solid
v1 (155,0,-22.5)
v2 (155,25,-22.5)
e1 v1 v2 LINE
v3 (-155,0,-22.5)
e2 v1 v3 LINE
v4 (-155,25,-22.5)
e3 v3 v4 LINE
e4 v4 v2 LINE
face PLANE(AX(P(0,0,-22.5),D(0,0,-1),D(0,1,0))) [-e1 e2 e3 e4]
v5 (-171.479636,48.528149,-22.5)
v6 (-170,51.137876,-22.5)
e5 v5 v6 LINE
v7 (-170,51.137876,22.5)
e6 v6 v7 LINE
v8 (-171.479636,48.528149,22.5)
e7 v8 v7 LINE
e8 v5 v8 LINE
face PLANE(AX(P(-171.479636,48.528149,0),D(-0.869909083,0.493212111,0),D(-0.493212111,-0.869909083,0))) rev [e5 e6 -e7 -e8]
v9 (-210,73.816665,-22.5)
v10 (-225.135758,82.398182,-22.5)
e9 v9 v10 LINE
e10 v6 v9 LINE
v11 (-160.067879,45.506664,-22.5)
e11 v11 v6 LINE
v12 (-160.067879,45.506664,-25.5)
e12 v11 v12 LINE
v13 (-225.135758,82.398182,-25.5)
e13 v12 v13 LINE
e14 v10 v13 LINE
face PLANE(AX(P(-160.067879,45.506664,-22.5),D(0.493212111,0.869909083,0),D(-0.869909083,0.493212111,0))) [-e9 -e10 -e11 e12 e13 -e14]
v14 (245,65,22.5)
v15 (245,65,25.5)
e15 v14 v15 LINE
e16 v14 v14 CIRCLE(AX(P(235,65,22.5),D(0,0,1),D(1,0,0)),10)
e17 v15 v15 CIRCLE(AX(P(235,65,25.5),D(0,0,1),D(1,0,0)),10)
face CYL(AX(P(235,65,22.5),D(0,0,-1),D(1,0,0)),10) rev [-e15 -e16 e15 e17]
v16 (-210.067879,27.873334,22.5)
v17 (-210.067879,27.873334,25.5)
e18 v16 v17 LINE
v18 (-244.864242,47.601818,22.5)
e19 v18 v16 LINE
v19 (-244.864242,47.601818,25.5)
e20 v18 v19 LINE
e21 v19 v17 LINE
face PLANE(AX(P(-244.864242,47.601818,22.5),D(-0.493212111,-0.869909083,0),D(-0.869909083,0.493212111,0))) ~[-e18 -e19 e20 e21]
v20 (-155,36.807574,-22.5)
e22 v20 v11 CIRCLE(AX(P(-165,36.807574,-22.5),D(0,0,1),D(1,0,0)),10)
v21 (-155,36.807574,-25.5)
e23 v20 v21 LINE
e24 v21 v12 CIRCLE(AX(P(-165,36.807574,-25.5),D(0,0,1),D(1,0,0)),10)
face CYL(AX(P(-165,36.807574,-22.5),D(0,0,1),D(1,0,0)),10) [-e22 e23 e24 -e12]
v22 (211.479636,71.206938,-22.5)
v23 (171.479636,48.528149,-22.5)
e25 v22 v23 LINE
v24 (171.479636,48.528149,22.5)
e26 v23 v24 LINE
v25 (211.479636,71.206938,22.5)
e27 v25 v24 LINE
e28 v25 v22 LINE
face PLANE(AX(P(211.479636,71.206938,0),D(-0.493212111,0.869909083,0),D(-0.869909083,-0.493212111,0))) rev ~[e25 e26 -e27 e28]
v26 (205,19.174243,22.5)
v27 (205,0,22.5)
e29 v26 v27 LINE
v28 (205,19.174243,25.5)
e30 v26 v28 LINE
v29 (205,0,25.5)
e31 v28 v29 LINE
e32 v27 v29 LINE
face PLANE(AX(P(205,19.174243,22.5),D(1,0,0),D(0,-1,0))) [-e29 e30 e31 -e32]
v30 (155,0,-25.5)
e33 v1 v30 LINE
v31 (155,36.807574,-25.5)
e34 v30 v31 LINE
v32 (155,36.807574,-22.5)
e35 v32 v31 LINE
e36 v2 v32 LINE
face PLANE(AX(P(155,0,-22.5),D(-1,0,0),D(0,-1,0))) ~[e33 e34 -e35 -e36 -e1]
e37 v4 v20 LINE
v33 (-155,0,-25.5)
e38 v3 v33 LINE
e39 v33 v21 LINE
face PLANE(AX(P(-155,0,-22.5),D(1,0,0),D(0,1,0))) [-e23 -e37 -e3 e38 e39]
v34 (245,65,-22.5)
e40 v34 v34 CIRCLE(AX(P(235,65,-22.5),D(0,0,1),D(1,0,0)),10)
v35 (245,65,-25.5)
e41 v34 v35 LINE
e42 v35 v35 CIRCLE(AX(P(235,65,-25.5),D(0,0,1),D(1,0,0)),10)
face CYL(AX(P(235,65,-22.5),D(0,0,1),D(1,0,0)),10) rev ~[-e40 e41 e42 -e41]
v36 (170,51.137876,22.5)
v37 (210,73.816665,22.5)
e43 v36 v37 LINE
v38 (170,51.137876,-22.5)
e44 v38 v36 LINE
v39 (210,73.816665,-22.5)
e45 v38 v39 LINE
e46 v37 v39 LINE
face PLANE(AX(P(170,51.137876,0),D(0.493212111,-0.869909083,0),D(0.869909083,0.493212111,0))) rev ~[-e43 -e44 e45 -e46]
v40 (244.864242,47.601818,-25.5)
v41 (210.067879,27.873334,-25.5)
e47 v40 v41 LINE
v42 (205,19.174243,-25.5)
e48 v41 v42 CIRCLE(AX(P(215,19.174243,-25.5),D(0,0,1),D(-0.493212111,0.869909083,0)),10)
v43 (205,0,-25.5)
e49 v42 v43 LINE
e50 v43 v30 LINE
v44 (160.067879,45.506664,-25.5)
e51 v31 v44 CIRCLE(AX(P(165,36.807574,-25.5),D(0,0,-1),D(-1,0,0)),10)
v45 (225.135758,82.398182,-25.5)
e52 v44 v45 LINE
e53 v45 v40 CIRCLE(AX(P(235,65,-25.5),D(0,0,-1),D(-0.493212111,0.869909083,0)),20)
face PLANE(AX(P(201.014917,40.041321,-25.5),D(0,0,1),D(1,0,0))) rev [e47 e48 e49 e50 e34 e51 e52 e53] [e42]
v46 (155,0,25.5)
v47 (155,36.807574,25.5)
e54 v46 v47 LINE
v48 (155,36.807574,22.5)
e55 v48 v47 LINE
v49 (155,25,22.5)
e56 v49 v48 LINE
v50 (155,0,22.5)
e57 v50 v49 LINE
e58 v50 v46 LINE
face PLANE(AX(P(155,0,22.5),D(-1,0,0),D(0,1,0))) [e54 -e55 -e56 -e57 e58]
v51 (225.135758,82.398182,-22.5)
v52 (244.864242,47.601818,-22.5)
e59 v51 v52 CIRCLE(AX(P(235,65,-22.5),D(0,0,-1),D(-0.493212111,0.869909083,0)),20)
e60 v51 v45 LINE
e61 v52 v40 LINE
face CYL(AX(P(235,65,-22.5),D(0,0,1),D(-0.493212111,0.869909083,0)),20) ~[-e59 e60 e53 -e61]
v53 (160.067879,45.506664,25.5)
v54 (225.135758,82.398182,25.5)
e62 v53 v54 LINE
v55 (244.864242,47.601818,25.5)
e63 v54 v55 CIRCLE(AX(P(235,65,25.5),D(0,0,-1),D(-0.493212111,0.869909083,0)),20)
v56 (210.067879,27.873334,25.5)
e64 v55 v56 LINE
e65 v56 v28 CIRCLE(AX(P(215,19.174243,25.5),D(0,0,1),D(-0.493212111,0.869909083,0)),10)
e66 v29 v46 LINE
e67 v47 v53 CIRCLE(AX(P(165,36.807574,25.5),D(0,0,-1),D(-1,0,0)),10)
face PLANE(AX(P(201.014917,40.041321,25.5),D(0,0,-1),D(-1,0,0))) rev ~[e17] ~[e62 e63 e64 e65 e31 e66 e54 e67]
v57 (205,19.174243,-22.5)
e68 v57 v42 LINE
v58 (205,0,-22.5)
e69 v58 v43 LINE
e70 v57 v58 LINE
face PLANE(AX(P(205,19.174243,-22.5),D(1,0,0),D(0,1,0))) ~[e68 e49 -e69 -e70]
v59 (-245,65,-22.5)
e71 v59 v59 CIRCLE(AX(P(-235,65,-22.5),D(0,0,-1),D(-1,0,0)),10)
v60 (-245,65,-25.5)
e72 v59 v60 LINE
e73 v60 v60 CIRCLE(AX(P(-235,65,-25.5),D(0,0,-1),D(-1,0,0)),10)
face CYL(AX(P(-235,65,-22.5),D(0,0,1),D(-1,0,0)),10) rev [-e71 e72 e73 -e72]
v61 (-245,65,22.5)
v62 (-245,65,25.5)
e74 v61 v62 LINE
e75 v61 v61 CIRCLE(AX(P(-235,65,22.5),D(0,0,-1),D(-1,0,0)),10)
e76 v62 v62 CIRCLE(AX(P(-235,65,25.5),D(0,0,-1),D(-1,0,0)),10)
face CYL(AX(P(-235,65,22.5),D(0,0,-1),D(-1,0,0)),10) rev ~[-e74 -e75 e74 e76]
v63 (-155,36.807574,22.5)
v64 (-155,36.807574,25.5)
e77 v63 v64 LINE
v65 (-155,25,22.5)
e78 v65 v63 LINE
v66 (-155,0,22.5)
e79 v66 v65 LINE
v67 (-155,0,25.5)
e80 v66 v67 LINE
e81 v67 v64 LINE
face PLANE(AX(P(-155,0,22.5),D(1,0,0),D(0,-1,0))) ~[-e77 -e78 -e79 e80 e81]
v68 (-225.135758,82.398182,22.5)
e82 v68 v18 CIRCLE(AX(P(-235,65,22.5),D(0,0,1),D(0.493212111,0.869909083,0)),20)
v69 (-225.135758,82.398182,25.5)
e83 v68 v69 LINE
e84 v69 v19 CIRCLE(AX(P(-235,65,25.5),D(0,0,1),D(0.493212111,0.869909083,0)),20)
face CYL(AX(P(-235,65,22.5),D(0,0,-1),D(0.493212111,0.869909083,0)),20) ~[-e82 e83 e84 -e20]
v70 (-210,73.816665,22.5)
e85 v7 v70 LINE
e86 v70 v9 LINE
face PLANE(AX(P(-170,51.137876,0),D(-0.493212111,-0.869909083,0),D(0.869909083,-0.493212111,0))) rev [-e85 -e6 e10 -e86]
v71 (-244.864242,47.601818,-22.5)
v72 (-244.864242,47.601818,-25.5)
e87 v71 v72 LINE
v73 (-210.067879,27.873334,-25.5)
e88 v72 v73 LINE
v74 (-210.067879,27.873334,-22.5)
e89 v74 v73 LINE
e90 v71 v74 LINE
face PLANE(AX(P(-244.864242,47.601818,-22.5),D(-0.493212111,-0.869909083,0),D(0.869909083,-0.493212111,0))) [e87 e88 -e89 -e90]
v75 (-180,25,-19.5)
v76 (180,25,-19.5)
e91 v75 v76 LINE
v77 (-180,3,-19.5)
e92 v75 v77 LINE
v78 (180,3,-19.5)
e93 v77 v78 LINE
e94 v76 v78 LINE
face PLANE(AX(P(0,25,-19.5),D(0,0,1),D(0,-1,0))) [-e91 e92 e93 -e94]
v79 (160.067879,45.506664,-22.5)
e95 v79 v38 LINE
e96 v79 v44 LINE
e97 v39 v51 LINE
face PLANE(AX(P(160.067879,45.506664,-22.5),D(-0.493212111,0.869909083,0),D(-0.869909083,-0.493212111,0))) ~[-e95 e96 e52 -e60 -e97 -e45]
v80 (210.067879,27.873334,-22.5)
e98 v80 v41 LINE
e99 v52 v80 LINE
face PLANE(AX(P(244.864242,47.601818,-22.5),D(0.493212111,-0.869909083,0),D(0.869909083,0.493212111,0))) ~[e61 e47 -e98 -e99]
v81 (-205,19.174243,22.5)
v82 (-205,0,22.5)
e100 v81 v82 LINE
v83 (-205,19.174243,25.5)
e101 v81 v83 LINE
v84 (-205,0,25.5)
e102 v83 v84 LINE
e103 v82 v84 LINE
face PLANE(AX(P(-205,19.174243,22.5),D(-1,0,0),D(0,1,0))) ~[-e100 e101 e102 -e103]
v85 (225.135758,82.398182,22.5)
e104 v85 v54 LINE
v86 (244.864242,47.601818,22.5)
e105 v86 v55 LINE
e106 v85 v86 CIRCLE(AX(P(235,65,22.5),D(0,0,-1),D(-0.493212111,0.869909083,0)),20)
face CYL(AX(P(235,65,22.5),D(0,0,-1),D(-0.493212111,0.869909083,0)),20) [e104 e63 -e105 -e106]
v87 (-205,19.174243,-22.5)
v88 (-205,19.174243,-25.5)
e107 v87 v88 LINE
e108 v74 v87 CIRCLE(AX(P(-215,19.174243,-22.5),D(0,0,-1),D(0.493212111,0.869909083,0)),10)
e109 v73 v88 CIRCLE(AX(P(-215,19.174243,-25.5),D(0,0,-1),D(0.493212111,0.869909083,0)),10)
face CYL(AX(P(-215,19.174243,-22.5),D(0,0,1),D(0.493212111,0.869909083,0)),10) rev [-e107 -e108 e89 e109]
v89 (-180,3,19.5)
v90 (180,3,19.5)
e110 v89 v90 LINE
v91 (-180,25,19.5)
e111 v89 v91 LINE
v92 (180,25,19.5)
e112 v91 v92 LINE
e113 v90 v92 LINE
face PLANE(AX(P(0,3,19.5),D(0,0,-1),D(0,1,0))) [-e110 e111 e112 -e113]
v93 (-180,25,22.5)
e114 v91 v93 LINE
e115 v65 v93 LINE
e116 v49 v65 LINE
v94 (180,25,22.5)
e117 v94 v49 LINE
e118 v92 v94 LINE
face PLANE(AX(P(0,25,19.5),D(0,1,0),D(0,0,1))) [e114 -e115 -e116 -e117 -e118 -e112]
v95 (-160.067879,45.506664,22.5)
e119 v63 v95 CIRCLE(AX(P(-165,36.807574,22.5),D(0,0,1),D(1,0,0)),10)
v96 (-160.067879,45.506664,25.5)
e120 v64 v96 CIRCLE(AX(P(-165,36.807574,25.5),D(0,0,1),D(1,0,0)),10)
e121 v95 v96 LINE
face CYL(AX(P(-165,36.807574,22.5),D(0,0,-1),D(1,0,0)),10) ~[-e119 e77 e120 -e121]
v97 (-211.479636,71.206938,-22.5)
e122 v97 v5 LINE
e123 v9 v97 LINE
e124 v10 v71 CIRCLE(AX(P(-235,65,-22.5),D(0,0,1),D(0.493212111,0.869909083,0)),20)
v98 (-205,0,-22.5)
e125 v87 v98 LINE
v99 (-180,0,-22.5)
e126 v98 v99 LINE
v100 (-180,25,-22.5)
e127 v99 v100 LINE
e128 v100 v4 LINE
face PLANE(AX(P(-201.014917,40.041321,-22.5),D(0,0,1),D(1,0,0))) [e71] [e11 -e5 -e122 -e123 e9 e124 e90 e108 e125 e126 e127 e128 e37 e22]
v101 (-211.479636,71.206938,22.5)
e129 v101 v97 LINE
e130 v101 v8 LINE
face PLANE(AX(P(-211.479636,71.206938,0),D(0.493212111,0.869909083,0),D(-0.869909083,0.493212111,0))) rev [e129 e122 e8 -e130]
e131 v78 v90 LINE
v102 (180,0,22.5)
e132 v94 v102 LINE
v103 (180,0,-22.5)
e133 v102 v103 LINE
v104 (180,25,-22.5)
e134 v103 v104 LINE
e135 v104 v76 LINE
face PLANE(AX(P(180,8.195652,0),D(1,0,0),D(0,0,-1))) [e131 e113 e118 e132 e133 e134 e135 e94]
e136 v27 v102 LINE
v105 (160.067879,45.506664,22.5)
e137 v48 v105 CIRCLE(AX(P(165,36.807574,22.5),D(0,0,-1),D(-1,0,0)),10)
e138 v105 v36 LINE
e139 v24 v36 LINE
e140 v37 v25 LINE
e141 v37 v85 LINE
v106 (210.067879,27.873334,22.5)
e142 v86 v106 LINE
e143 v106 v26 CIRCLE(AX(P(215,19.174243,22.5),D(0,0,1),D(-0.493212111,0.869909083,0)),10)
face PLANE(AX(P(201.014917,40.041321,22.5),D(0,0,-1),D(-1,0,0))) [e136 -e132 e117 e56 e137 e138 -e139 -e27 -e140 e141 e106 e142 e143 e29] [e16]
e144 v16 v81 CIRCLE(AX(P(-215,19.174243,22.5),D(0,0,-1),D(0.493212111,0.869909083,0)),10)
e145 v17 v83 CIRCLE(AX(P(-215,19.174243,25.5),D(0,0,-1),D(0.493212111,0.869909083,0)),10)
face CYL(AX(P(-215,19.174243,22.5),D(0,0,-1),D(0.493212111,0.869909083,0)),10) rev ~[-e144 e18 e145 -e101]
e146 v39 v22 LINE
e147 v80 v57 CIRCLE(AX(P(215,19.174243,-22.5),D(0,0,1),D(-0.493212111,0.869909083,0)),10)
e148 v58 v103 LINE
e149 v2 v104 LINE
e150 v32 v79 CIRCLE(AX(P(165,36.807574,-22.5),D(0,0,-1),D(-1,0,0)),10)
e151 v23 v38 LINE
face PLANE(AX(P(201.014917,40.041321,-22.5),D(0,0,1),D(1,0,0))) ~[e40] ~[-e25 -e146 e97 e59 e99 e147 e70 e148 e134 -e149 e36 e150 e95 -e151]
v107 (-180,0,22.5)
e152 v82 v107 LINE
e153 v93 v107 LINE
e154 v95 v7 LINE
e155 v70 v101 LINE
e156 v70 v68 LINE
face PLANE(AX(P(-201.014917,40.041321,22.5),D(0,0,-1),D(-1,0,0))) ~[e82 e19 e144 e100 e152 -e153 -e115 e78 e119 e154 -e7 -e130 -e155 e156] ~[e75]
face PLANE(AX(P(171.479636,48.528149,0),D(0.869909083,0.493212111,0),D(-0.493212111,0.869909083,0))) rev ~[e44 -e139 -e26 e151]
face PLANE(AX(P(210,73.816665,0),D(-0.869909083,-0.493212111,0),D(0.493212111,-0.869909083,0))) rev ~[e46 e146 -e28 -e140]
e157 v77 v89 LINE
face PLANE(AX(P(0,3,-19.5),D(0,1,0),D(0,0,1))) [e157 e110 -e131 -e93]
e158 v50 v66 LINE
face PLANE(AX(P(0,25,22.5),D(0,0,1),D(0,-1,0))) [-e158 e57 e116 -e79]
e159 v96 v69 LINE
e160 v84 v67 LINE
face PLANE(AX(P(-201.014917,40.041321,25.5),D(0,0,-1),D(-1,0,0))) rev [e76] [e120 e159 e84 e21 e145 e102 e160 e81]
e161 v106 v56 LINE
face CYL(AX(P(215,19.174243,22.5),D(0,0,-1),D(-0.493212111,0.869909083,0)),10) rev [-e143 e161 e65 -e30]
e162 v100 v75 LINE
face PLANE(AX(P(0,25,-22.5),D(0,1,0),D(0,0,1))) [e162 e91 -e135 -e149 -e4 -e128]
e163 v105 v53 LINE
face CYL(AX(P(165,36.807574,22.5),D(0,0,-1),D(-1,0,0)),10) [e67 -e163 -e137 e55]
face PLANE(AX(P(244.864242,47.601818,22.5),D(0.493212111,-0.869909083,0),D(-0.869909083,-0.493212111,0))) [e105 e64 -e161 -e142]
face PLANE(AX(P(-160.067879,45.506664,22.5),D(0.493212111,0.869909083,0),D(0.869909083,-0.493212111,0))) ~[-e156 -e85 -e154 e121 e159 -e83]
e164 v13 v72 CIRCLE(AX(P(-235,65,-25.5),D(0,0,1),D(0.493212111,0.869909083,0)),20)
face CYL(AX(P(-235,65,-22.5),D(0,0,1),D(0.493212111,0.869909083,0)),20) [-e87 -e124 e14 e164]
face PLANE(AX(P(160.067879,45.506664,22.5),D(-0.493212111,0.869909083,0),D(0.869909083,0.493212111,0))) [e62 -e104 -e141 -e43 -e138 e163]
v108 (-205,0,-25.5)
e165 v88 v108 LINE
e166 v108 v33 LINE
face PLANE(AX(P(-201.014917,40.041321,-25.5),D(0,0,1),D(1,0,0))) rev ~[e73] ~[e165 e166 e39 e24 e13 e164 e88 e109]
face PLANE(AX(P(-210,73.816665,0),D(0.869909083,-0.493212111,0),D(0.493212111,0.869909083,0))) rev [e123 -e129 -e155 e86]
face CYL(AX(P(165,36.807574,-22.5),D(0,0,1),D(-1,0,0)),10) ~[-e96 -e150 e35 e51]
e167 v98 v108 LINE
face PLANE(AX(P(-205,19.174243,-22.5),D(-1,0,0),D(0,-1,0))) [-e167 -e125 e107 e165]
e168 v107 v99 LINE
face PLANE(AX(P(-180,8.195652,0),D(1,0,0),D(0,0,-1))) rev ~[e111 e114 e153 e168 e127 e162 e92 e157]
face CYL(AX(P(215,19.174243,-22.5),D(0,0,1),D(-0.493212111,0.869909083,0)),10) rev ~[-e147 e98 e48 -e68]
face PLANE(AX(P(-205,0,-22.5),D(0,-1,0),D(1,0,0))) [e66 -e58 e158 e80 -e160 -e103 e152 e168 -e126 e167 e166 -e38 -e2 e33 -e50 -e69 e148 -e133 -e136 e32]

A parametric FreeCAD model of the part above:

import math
import FreeCAD as App
import Part
import Sketcher

V = App.Vector

doc = App.newDocument("Part")
body = doc.addObject("PartDesign::Body", "Body")

# Sketch on YZ plane
sketch1 = body.newObject("Sketcher::SketchObject", "Sketch")
sketch1.AttachmentSupport = (doc.getObject("YZ_Plane"), [""])
sketch1.MapMode = "FlatFace"
sketch1.addGeometry([
    Part.LineSegment(V(0, -22.5, 0), V(25, -22.5, 0)),  # 0
    Part.LineSegment(V(25, -22.5, 0), V(25, -19.5, 0)),  # 1
    Part.LineSegment(V(25, -19.5, 0), V(3, -19.5, 0)),  # 2
    Part.LineSegment(V(3, -19.5, 0), V(3, 19.5, 0)),  # 3
    Part.LineSegment(V(3, 19.5, 0), V(25, 19.5, 0)),  # 4
    Part.LineSegment(V(25, 19.5, 0), V(25, 22.5, 0)),  # 5
    Part.LineSegment(V(25, 22.5, 0), V(0, 22.5, 0)),  # 6
    Part.LineSegment(V(0, 22.5, 0), V(0, -22.5, 0)),  # 7
], False)
sketch1.addConstraint([
    Sketcher.Constraint("Coincident", 0, 2, 1, 1),
    Sketcher.Constraint("Coincident", 1, 2, 2, 1),
    Sketcher.Constraint("Coincident", 2, 2, 3, 1),
    Sketcher.Constraint("Coincident", 3, 2, 4, 1),
    Sketcher.Constraint("Coincident", 4, 2, 5, 1),
    Sketcher.Constraint("Coincident", 5, 2, 6, 1),
    Sketcher.Constraint("Coincident", 6, 2, 7, 1),
    Sketcher.Constraint("Coincident", 7, 2, 0, 1),
    Sketcher.Constraint("Horizontal", 0),
    Sketcher.Constraint("Vertical", 1),
    Sketcher.Constraint("Horizontal", 2),
    Sketcher.Constraint("Vertical", 3),
    Sketcher.Constraint("Horizontal", 4),
    Sketcher.Constraint("Vertical", 5),
    Sketcher.Constraint("Horizontal", 6),
    Sketcher.Constraint("Vertical", 7),
    Sketcher.Constraint("Symmetric", 6, 2, 7, 2, -1, 1),
    Sketcher.Constraint("Symmetric", 1, 2, 4, 2, -1),
    Sketcher.Constraint("DistanceX", 0, 1, 0, 2, 25.0),
    Sketcher.Constraint("DistanceX", 2, 2, 2, 1, 22.0),
    Sketcher.Constraint("DistanceY", 1, 1, 1, 2, 3.0),
    Sketcher.Constraint("DistanceY", 3, 1, 3, 2, 39.0),
])
pad1 = body.newObject("PartDesign::Pad", "Pad")
pad1.Profile = sketch1
pad1.Length = 360
pad1.Midplane = True

# Sketch on XY plane
sketch2 = body.newObject("Sketcher::SketchObject", "Sketch001")
sketch2.AttachmentSupport = (doc.getObject("XY_Plane"), [""])
sketch2.MapMode = "FlatFace"
sketch2.AttachmentOffset = App.Placement(V(0, 0, 22.5), App.Rotation())
sketch2.addGeometry([
    Part.LineSegment(V(155, 36.807574, 0), V(155, 0, 0)),  # 0
    Part.LineSegment(V(155, 0, 0), V(205, 0, 0)),  # 1
    Part.LineSegment(V(205, 0, 0), V(205, 19.174243, 0)),  # 2
    Part.ArcOfCircle(Part.Circle(V(215, 19.174243, 0), V(0, 0, 1), 10), math.radians(119.551924), math.radians(180)),  # 3
    Part.LineSegment(V(210.067879, 27.873334, 0), V(244.864242, 47.601818, 0)),  # 4
    Part.ArcOfCircle(Part.Circle(V(235, 65, 0), V(0, 0, 1), 20), math.radians(-60.448076), math.radians(119.551924)),  # 5
    Part.LineSegment(V(225.135758, 82.398182, 0), V(160.067879, 45.506664, 0)),  # 6
    Part.ArcOfCircle(Part.Circle(V(165, 36.807574, 0), V(0, 0, 1), 10), math.radians(119.551924), math.radians(180)),  # 7
    Part.Circle(V(235, 65, 0), V(0, 0, 1), 10),  # 8
], False)
sketch2.addConstraint([
    Sketcher.Constraint("Coincident", 0, 2, 1, 1),
    Sketcher.Constraint("Coincident", 1, 2, 2, 1),
    Sketcher.Constraint("Tangent", 2, 2, 3, 2),
    Sketcher.Constraint("Tangent", 3, 1, 4, 1),
    Sketcher.Constraint("Tangent", 4, 2, 5, 1),
    Sketcher.Constraint("Tangent", 5, 2, 6, 1),
    Sketcher.Constraint("Tangent", 6, 2, 7, 1),
    Sketcher.Constraint("Tangent", 7, 2, 0, 1),
    Sketcher.Constraint("Vertical", 0),
    Sketcher.Constraint("Horizontal", 1),
    Sketcher.Constraint("Vertical", 2),
    Sketcher.Constraint("Coincident", 8, 3, 5, 3),
    Sketcher.Constraint("Equal", 3, 7),
    Sketcher.Constraint("Equal", 7, 8),
    Sketcher.Constraint("PointOnObject", 0, 2, -1),
    Sketcher.Constraint("Parallel", 4, 6),
    Sketcher.Constraint("Diameter", 8, 20.0),
    Sketcher.Constraint("Radius", 5, 20.0),
    Sketcher.Constraint("DistanceX", 1, 1, 1, 2, 50.0),
    Sketcher.Constraint("Distance", 4, 40.0),
    Sketcher.Constraint("DistanceX", -1, 1, 3, 3, 215.0),
    Sketcher.Constraint("DistanceX", -1, 1, 5, 3, 235.0),
    Sketcher.Constraint("DistanceY", -1, 1, 5, 3, 65.0),
])
pad2 = body.newObject("PartDesign::Pad", "Pad001")
pad2.Profile = sketch2
pad2.Length = 3
doc.recompute()

mirrored = body.newObject("PartDesign::Mirrored", "Mirrored")
mirrored.Originals = [pad2]
mirrored.MirrorPlane = (doc.getObject("XY_Plane"), [""])
body.Tip = mirrored

# Sketch on XY plane
sketch3 = body.newObject("Sketcher::SketchObject", "Sketch002")
sketch3.AttachmentSupport = (doc.getObject("XY_Plane"), [""])
sketch3.MapMode = "FlatFace"
sketch3.addGeometry([
    Part.LineSegment(V(210, 73.816665, 0), V(170, 51.137876, 0)),
    Part.LineSegment(V(170, 51.137876, 0), V(171.479636, 48.528149, 0)),
    Part.LineSegment(V(171.479636, 48.528149, 0), V(211.479636, 71.206938, 0)),
    Part.LineSegment(V(211.479636, 71.206938, 0), V(210, 73.816665, 0)),
], False)
sketch3.addConstraint([
    Sketcher.Constraint("Coincident", 0, 2, 1, 1),
    Sketcher.Constraint("Coincident", 1, 2, 2, 1),
    Sketcher.Constraint("Coincident", 2, 2, 3, 1),
    Sketcher.Constraint("Coincident", 3, 2, 0, 1),
    Sketcher.Constraint("Perpendicular", 0, 1),
    Sketcher.Constraint("Perpendicular", 1, 2),
    Sketcher.Constraint("Perpendicular", 2, 3),
    Sketcher.Constraint("Distance", 1, 3.0),
    Sketcher.Constraint("DistanceX", -1, 1, 0, 2, 170.0),
    Sketcher.Constraint("DistanceX", -1, 1, 3, 2, 210.0),
    Sketcher.Constraint("DistanceY", -1, 1, 1, 2, 48.528149),
    Sketcher.Constraint("DistanceY", -1, 1, 2, 2, 71.206938),
])
pad3 = body.newObject("PartDesign::Pad", "Pad002")
pad3.Profile = sketch3
pad3.Length = 45
pad3.Midplane = True
doc.recompute()

mirrored2 = body.newObject("PartDesign::Mirrored", "Mirrored001")
mirrored2.Originals = [pad2, pad3]
mirrored2.MirrorPlane = (doc.getObject("YZ_Plane"), [""])
body.Tip = mirrored2

# Sketch on XY plane
sketch4 = body.newObject("Sketcher::SketchObject", "Sketch003")
sketch4.AttachmentSupport = (doc.getObject("XY_Plane"), [""])
sketch4.MapMode = "FlatFace"
sketch4.AttachmentOffset = App.Placement(V(0, 0, -22.5), App.Rotation())
sketch4.addGeometry([
    Part.LineSegment(V(-155, 36.807574, 0), V(-155, 0, 0)),  # 0
    Part.LineSegment(V(-155, 0, 0), V(-205, 0, 0)),  # 1
    Part.LineSegment(V(-205, 0, 0), V(-205, 19.174243, 0)),  # 2
    Part.ArcOfCircle(Part.Circle(V(-215, 19.174243, 0), V(0, 0, 1), 10), math.radians(0), math.radians(60.448076)),  # 3
    Part.LineSegment(V(-210.067879, 27.873334, 0), V(-244.864242, 47.601818, 0)),  # 4
    Part.ArcOfCircle(Part.Circle(V(-235, 65, 0), V(0, 0, 1), 20), math.radians(60.448076), math.radians(240.448076)),  # 5
    Part.LineSegment(V(-225.135758, 82.398182, 0), V(-160.067879, 45.506664, 0)),  # 6
    Part.ArcOfCircle(Part.Circle(V(-165, 36.807574, 0), V(0, 0, 1), 10), math.radians(0), math.radians(60.448076)),  # 7
    Part.Circle(V(-235, 65, 0), V(0, 0, 1), 10),  # 8
], False)
sketch4.addConstraint([
    Sketcher.Constraint("Coincident", 0, 2, 1, 1),
    Sketcher.Constraint("Coincident", 1, 2, 2, 1),
    Sketcher.Constraint("Tangent", 2, 2, 3, 1),
    Sketcher.Constraint("Tangent", 3, 2, 4, 1),
    Sketcher.Constraint("Tangent", 4, 2, 5, 2),
    Sketcher.Constraint("Tangent", 5, 1, 6, 1),
    Sketcher.Constraint("Tangent", 6, 2, 7, 2),
    Sketcher.Constraint("Tangent", 7, 1, 0, 1),
    Sketcher.Constraint("Vertical", 0),
    Sketcher.Constraint("Horizontal", 1),
    Sketcher.Constraint("Vertical", 2),
    Sketcher.Constraint("Coincident", 8, 3, 5, 3),
    Sketcher.Constraint("Equal", 3, 7),
    Sketcher.Constraint("Equal", 7, 8),
    Sketcher.Constraint("PointOnObject", 0, 2, -1),
    Sketcher.Constraint("Parallel", 4, 6),
    Sketcher.Constraint("Diameter", 8, 20.0),
    Sketcher.Constraint("Radius", 5, 20.0),
    Sketcher.Constraint("DistanceX", 1, 2, 1, 1, 50.0),
    Sketcher.Constraint("Distance", 4, 40.0),
    Sketcher.Constraint("DistanceX", 3, 3, -1, 1, 215.0),
    Sketcher.Constraint("DistanceX", 5, 3, -1, 1, 235.0),
    Sketcher.Constraint("DistanceY", -1, 1, 5, 3, 65.0),
])
pad4 = body.newObject("PartDesign::Pad", "Pad003")
pad4.Profile = sketch4
pad4.Length = 3
pad4.Reversed = True

doc.recompute()
